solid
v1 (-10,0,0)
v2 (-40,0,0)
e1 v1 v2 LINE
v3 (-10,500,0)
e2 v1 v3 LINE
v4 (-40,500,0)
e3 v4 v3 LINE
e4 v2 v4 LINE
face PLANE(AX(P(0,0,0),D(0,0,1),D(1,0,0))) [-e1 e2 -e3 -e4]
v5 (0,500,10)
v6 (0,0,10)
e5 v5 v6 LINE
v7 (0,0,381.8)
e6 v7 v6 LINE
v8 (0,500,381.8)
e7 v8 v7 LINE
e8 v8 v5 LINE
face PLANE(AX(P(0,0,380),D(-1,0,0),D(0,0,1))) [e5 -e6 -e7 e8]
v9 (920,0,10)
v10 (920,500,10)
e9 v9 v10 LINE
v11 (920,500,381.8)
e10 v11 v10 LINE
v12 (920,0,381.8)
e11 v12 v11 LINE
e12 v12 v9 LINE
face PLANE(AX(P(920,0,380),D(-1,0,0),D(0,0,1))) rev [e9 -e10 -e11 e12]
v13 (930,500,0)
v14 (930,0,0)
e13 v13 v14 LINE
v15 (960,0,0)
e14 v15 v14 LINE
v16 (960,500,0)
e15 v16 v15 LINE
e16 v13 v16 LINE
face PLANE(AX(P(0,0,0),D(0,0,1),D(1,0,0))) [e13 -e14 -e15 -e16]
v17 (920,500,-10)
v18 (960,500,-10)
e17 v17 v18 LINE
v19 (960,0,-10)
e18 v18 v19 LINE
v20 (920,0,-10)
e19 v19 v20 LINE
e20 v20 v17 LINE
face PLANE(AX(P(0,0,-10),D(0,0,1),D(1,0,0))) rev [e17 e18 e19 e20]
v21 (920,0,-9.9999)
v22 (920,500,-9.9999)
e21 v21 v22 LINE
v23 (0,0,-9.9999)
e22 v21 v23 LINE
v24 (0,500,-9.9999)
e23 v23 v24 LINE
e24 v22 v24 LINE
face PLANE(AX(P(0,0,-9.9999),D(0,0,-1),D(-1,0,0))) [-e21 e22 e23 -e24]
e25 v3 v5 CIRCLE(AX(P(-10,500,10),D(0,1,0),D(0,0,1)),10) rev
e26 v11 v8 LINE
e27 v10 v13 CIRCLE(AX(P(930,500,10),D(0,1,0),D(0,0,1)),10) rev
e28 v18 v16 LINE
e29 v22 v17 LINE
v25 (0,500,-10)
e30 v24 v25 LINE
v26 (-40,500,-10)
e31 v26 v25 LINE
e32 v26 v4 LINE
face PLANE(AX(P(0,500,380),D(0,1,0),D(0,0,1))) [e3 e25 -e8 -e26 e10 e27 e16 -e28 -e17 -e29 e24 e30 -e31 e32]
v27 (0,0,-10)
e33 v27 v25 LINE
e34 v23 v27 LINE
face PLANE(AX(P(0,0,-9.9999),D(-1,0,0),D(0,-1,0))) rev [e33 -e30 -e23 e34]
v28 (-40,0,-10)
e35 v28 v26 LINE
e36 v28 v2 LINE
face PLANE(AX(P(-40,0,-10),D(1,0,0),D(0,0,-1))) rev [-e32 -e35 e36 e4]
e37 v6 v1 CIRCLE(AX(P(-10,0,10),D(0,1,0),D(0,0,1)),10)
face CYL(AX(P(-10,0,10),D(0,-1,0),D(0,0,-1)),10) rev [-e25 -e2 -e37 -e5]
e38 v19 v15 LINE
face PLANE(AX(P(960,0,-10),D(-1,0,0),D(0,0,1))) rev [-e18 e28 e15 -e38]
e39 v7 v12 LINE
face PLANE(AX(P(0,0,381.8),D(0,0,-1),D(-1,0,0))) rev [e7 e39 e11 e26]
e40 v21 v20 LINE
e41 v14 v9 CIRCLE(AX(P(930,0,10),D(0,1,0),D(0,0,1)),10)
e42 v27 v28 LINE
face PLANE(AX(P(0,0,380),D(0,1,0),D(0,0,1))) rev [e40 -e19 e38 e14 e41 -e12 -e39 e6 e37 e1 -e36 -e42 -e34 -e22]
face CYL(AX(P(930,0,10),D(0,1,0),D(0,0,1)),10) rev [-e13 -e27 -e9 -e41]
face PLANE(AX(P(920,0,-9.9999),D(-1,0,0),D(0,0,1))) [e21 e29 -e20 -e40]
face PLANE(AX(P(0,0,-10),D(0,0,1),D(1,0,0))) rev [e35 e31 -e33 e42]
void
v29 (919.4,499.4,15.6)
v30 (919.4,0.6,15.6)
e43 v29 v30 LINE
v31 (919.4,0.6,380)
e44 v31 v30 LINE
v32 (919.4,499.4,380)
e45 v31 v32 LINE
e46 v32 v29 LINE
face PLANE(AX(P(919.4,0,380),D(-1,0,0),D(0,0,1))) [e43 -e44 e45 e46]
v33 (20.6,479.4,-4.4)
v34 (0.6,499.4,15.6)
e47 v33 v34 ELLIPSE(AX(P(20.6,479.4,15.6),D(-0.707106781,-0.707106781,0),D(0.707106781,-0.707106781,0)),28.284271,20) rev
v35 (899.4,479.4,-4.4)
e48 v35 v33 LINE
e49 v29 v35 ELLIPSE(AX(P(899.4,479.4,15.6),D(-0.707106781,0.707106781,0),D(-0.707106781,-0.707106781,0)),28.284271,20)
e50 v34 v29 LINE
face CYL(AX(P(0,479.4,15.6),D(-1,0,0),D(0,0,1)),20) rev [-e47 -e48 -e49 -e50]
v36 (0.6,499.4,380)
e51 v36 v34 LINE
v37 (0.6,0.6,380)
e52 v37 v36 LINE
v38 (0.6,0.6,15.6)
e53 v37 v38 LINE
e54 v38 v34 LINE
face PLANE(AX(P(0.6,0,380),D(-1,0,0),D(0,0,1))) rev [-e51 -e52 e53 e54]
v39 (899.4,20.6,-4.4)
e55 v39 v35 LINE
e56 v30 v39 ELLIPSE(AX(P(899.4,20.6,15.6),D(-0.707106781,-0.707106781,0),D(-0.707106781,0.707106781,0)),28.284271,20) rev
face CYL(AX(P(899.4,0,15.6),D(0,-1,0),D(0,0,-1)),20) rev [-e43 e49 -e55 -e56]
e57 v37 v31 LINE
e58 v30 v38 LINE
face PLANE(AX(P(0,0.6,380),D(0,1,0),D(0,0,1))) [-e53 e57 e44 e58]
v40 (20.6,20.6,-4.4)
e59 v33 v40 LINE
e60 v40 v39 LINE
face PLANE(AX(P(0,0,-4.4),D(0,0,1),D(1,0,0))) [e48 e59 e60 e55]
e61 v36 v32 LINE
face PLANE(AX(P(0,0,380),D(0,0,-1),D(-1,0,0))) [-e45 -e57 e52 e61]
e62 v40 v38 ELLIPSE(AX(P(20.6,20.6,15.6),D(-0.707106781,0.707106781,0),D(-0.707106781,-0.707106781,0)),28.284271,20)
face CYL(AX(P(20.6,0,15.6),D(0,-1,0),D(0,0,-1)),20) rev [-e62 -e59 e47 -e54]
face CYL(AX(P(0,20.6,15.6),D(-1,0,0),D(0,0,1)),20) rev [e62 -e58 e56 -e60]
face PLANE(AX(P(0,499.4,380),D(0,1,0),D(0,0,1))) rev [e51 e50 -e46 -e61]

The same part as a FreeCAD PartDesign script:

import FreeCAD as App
import Part
import Sketcher

V = App.Vector


def edges_at(feature, points):
    """Names of the edges that pass closest to the given points."""
    edges = feature.Shape.Edges
    near = lambda p: min(range(len(edges)), key=lambda i: edges[i].distToShape(Part.Vertex(*p))[0])
    return sorted({f"Edge{near(p) + 1}" for p in points})


def faces_at(feature, points):
    """Names of the faces that lie closest to the given points."""
    faces = feature.Shape.Faces
    near = lambda p: min(range(len(faces)), key=lambda i: faces[i].distToShape(Part.Vertex(*p))[0])
    return sorted({f"Face{near(p) + 1}" for p in points})

doc = App.newDocument("Part")
params = doc.addObject("Spreadsheet::Sheet", "Params")
for row, (alias, value) in enumerate([
    ("sketch1_width", "920 mm"),
    ("sketch1_height", "500 mm"),
    ("pad1_length", "380 mm"),
    ("thickness_wall", "0.6 mm"),
    ("sketch2_width", "920 mm"),
    ("sketch2_height", "500 mm"),
    ("pad2_length", "1.8 mm"),
    ("sketch3_width", "1000 mm"),
    ("sketch3_height", "500 mm"),
    ("pad3_length", "10 mm"),
    ("fillet_radius", "10 mm"),
    ("sketch4_width", "918.8 mm"),
    ("sketch4_height", "498.8 mm"),
    ("pocket1_length", "5 mm"),
    ("fillet2_radius", "20 mm"),
    ("sketch5_width", "920 mm"),
    ("sketch5_height", "500 mm"),
    ("pocket2_length", "0.0001 mm"),
], start=1):
    params.set(f"A{row}", alias)
    params.set(f"B{row}", "=" + value)
    params.setAlias(f"B{row}", alias)

body = doc.addObject("PartDesign::Body", "Body")

sketch1 = body.newObject("Sketcher::SketchObject", "Sketch")
sketch1.AttachmentSupport = (doc.getObject("XY_Plane"), [""])
sketch1.MapMode = "FlatFace"
sketch1.addGeometry([
    Part.LineSegment(V(0, 500, 0), V(0, 0, 0)),
    Part.LineSegment(V(0, 0, 0), V(920, 0, 0)),
    Part.LineSegment(V(920, 0, 0), V(920, 500, 0)),
    Part.LineSegment(V(920, 500, 0), V(0, 500, 0)),
], False)
sketch1.addConstraint([
    Sketcher.Constraint("Coincident", 0, 2, 1, 1),
    Sketcher.Constraint("Coincident", 1, 2, 2, 1),
    Sketcher.Constraint("Coincident", 2, 2, 3, 1),
    Sketcher.Constraint("Coincident", 3, 2, 0, 1),
    Sketcher.Constraint("Vertical", 0),
    Sketcher.Constraint("Horizontal", 1),
    Sketcher.Constraint("Vertical", 2),
    Sketcher.Constraint("Horizontal", 3),
    Sketcher.Constraint("Coincident", 0, 2, -1, 1),
    Sketcher.Constraint("DistanceX", 1, 1, 1, 2, 920.0),
    Sketcher.Constraint("DistanceY", 0, 2, 0, 1, 500.0),
])
sketch1.setExpression("Constraints[9]", "Params.sketch1_width")
sketch1.setExpression("Constraints[10]", "Params.sketch1_height")
pad1 = body.newObject("PartDesign::Pad", "Pad")
pad1.Profile = sketch1
pad1.setExpression("Length", "Params.pad1_length")
doc.recompute()

thickness = body.newObject("PartDesign::Thickness", "Thickness")
thickness.Base = (pad1, faces_at(pad1, [(460, 250, 380)]))
thickness.setExpression("Value", "Params.thickness_wall")
thickness.Reversed = True
thickness.Join = "Intersection"

sketch2 = body.newObject("Sketcher::SketchObject", "Sketch001")
sketch2.AttachmentSupport = (doc.getObject("XY_Plane"), [""])
sketch2.MapMode = "FlatFace"
sketch2.AttachmentOffset = App.Placement(V(0, 0, 380), App.Rotation())
sketch2.addGeometry([
    Part.LineSegment(V(0, 500, 0), V(0, 0, 0)),
    Part.LineSegment(V(0, 0, 0), V(920, 0, 0)),
    Part.LineSegment(V(920, 0, 0), V(920, 500, 0)),
    Part.LineSegment(V(920, 500, 0), V(0, 500, 0)),
], False)
sketch2.addConstraint([
    Sketcher.Constraint("Coincident", 0, 2, 1, 1),
    Sketcher.Constraint("Coincident", 1, 2, 2, 1),
    Sketcher.Constraint("Coincident", 2, 2, 3, 1),
    Sketcher.Constraint("Coincident", 3, 2, 0, 1),
    Sketcher.Constraint("Vertical", 0),
    Sketcher.Constraint("Horizontal", 1),
    Sketcher.Constraint("Vertical", 2),
    Sketcher.Constraint("Horizontal", 3),
    Sketcher.Constraint("Coincident", 0, 2, -1, 1),
    Sketcher.Constraint("DistanceX", 1, 1, 1, 2, 920.0),
    Sketcher.Constraint("DistanceY", 0, 2, 0, 1, 500.0),
])
sketch2.setExpression("Constraints[9]", "Params.sketch2_width")
sketch2.setExpression("Constraints[10]", "Params.sketch2_height")
pad2 = body.newObject("PartDesign::Pad", "Pad001")
pad2.Profile = sketch2
pad2.setExpression("Length", "Params.pad2_length")

sketch3 = body.newObject("Sketcher::SketchObject", "Sketch002")
sketch3.AttachmentSupport = (doc.getObject("XY_Plane"), [""])
sketch3.MapMode = "FlatFace"
sketch3.addGeometry([
    Part.LineSegment(V(960, 500, 0), V(960, 0, 0)),
    Part.LineSegment(V(960, 0, 0), V(-40, 0, 0)),
    Part.LineSegment(V(-40, 0, 0), V(-40, 500, 0)),
    Part.LineSegment(V(-40, 500, 0), V(960, 500, 0)),
], False)
sketch3.addConstraint([
    Sketcher.Constraint("Coincident", 0, 2, 1, 1),
    Sketcher.Constraint("Coincident", 1, 2, 2, 1),
    Sketcher.Constraint("Coincident", 2, 2, 3, 1),
    Sketcher.Constraint("Coincident", 3, 2, 0, 1),
    Sketcher.Constraint("Vertical", 0),
    Sketcher.Constraint("Horizontal", 1),
    Sketcher.Constraint("Vertical", 2),
    Sketcher.Constraint("Horizontal", 3),
    Sketcher.Constraint("PointOnObject", 0, 2, -1),
    Sketcher.Constraint("DistanceX", 1, 2, 1, 1, 1000.0),
    Sketcher.Constraint("DistanceY", 0, 2, 0, 1, 500.0),
    Sketcher.Constraint("DistanceX", -1, 1, 0, 2, 960.0),
])
sketch3.setExpression("Constraints[9]", "Params.sketch3_width")
sketch3.setExpression("Constraints[10]", "Params.sketch3_height")
pad3 = body.newObject("PartDesign::Pad", "Pad002")
pad3.Profile = sketch3
pad3.setExpression("Length", "Params.pad3_length")
pad3.Reversed = True
doc.recompute()

fillet = body.newObject("PartDesign::Fillet", "Fillet")
fillet.Base = (pad3, edges_at(pad3, [(0, 250, 0), (920, 250, 0)]))
fillet.setExpression("Radius", "Params.fillet_radius")

sketch4 = body.newObject("Sketcher::SketchObject", "Sketch003")
sketch4.AttachmentSupport = (doc.getObject("XY_Plane"), [""])
sketch4.MapMode = "FlatFace"
sketch4.AttachmentOffset = App.Placement(V(0, 0, 0.6), App.Rotation())
sketch4.addGeometry([
    Part.LineSegment(V(0.6, 499.4, 0), V(0.6, 0.6, 0)),
    Part.LineSegment(V(0.6, 0.6, 0), V(919.4, 0.6, 0)),
    Part.LineSegment(V(919.4, 0.6, 0), V(919.4, 499.4, 0)),
    Part.LineSegment(V(919.4, 499.4, 0), V(0.6, 499.4, 0)),
], False)
sketch4.addConstraint([
    Sketcher.Constraint("Coincident", 0, 2, 1, 1),
    Sketcher.Constraint("Coincident", 1, 2, 2, 1),
    Sketcher.Constraint("Coincident", 2, 2, 3, 1),
    Sketcher.Constraint("Coincident", 3, 2, 0, 1),
    Sketcher.Constraint("Vertical", 0),
    Sketcher.Constraint("Horizontal", 1),
    Sketcher.Constraint("Vertical", 2),
    Sketcher.Constraint("Horizontal", 3),
    Sketcher.Constraint("DistanceX", 1, 1, 1, 2, 918.8),
    Sketcher.Constraint("DistanceY", 0, 2, 0, 1, 498.8),
    Sketcher.Constraint("DistanceX", -1, 1, 0, 2, 0.6),
    Sketcher.Constraint("DistanceY", -1, 1, 0, 2, 0.6),
])
sketch4.setExpression("Constraints[8]", "Params.sketch4_width")
sketch4.setExpression("Constraints[9]", "Params.sketch4_height")
pocket1 = body.newObject("PartDesign::Pocket", "Pocket")
pocket1.Profile = sketch4
pocket1.setExpression("Length", "Params.pocket1_length")
doc.recompute()

fillet2 = body.newObject("PartDesign::Fillet", "Fillet001")
fillet2.Base = (pocket1, edges_at(pocket1, [
    (919.4, 250, -4.4),
    (460, 0.6, -4.4),
    (0.6, 250, -4.4),
    (460, 499.4, -4.4),
]))
fillet2.setExpression("Radius", "Params.fillet2_radius")

sketch5 = body.newObject("Sketcher::SketchObject", "Sketch004")
sketch5.AttachmentSupport = (doc.getObject("XY_Plane"), [""])
sketch5.MapMode = "FlatFace"
sketch5.AttachmentOffset = App.Placement(V(0, 0, -10), App.Rotation())
sketch5.addGeometry([
    Part.LineSegment(V(920, 500, 0), V(920, 0, 0)),
    Part.LineSegment(V(920, 0, 0), V(0, 0, 0)),
    Part.LineSegment(V(0, 0, 0), V(0, 500, 0)),
    Part.LineSegment(V(0, 500, 0), V(920, 500, 0)),
], False)
sketch5.addConstraint([
    Sketcher.Constraint("Coincident", 0, 2, 1, 1),
    Sketcher.Constraint("Coincident", 1, 2, 2, 1),
    Sketcher.Constraint("Coincident", 2, 2, 3, 1),
    Sketcher.Constraint("Coincident", 3, 2, 0, 1),
    Sketcher.Constraint("Vertical", 0),
    Sketcher.Constraint("Horizontal", 1),
    Sketcher.Constraint("Vertical", 2),
    Sketcher.Constraint("Horizontal", 3),
    Sketcher.Constraint("Coincident", 1, 2, -1, 1),
    Sketcher.Constraint("DistanceX", 1, 2, 1, 1, 920.0),
    Sketcher.Constraint("DistanceY", 0, 2, 0, 1, 500.0),
])
sketch5.setExpression("Constraints[9]", "Params.sketch5_width")
sketch5.setExpression("Constraints[10]", "Params.sketch5_height")
pocket2 = body.newObject("PartDesign::Pocket", "Pocket001")
pocket2.Profile = sketch5
pocket2.setExpression("Length", "Params.pocket2_length")
pocket2.Reversed = True

doc.recompute()
